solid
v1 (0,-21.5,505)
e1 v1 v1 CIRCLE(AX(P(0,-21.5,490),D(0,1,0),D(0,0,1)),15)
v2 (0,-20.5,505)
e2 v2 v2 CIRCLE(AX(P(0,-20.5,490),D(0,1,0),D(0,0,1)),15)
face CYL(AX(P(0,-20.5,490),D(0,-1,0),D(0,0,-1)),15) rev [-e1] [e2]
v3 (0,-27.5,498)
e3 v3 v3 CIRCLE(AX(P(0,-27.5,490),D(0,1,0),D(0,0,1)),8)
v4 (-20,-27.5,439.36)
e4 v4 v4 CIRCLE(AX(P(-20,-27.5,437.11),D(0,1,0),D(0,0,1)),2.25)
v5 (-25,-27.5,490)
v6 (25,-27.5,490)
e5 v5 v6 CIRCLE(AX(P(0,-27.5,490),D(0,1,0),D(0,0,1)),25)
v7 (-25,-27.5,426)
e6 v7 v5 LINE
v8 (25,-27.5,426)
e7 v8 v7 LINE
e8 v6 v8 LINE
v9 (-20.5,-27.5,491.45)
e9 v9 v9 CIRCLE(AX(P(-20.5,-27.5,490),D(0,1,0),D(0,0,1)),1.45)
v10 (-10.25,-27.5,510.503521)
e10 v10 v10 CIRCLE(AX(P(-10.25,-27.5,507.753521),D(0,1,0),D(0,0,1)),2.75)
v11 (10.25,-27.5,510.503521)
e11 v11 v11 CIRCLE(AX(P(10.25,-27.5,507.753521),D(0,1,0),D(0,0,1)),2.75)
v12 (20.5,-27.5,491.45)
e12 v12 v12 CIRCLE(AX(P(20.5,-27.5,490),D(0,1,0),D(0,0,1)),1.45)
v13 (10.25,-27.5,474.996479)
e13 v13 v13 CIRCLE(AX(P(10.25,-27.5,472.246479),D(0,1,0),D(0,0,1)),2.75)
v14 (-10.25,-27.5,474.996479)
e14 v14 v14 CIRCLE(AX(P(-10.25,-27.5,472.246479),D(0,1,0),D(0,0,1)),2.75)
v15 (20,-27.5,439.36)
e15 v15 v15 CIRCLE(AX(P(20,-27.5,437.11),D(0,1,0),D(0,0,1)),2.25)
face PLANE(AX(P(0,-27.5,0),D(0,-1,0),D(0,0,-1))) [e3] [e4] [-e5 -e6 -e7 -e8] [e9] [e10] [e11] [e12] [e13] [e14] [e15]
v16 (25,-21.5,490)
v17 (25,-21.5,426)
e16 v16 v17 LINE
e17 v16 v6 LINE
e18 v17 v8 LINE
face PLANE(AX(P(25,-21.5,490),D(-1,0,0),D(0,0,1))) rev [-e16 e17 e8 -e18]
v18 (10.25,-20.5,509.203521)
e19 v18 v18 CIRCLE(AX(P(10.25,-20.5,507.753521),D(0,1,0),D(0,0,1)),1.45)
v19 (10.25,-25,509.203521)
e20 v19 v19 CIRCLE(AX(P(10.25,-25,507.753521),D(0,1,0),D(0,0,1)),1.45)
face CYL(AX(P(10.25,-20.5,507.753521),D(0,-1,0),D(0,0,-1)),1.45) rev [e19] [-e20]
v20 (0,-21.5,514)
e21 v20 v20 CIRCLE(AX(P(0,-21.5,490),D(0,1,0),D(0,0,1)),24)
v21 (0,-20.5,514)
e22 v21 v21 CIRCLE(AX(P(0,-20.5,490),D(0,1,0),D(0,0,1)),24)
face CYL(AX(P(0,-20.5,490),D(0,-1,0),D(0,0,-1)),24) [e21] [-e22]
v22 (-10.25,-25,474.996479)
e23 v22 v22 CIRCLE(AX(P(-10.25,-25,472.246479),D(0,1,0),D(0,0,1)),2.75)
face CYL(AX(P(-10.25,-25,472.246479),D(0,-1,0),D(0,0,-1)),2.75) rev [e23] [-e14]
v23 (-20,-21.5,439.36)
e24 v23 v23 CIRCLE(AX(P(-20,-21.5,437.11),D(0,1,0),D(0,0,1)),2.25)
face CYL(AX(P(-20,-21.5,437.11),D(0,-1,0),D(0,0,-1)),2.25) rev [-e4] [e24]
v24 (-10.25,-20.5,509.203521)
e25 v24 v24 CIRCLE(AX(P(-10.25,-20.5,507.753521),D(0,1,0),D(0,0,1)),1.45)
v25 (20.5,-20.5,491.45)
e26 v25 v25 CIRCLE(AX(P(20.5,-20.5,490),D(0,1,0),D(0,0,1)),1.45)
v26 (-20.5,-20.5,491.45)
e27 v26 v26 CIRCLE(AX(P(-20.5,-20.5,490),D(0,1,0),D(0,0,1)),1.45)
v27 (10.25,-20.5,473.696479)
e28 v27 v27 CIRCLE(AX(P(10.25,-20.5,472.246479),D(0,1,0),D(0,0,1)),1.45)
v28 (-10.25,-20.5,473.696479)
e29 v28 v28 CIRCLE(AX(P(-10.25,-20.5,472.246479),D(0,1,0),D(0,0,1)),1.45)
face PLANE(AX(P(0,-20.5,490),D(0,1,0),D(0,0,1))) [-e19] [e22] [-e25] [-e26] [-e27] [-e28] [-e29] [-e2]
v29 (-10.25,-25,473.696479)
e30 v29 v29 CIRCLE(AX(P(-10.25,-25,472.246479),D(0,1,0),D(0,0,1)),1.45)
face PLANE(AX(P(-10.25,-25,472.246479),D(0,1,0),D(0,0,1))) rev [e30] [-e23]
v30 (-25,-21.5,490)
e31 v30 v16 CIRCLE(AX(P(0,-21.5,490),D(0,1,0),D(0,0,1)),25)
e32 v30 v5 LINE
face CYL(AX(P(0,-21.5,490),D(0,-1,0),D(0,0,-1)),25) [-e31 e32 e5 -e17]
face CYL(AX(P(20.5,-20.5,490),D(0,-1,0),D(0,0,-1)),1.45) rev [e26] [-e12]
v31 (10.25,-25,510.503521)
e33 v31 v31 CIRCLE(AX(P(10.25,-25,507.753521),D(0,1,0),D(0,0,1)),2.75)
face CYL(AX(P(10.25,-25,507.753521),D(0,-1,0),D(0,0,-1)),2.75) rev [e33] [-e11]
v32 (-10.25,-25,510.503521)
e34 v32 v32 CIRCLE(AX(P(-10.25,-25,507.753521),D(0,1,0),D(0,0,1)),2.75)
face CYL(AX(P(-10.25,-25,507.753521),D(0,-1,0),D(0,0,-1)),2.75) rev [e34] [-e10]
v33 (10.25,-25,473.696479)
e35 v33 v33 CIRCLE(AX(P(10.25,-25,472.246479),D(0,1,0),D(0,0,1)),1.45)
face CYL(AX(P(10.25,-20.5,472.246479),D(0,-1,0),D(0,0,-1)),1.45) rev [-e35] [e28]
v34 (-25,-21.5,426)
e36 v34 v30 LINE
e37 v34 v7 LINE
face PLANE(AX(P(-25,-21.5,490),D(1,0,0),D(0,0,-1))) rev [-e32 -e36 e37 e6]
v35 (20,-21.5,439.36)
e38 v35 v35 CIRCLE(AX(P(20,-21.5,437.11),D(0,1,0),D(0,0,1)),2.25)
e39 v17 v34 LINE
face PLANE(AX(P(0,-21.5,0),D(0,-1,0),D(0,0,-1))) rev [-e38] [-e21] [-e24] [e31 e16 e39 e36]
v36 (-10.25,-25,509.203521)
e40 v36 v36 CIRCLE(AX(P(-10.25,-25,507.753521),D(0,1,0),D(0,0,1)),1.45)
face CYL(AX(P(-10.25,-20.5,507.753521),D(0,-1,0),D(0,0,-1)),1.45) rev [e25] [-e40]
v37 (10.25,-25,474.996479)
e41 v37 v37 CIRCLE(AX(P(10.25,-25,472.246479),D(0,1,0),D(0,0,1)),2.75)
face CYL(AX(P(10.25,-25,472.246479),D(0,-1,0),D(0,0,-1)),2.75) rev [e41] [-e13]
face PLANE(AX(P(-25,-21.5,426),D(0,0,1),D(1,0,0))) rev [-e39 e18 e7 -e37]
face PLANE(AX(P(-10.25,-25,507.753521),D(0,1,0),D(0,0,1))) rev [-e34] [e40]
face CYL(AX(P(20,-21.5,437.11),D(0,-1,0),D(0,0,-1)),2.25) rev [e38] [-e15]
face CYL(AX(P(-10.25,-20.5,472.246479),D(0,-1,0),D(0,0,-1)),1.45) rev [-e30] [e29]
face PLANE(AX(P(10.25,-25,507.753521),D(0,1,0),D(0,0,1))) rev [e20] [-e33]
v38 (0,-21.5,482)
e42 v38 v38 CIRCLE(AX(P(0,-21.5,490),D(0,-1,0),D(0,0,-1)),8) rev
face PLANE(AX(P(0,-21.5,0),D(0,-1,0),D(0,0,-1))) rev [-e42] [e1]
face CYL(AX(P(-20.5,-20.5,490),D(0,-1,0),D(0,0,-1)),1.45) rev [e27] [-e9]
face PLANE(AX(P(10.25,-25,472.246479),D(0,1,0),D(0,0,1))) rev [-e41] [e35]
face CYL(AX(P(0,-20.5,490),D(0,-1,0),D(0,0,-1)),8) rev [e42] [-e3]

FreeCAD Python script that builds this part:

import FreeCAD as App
import Part
import Sketcher

V = App.Vector

doc = App.newDocument("Part")
body = doc.addObject("PartDesign::Body", "Body")

sketch1 = body.newObject("Sketcher::SketchObject", "Sketch")
sketch1.AttachmentSupport = (doc.getObject("XZ_Plane"), [""])
sketch1.MapMode = "FlatFace"
sketch1.AttachmentOffset = App.Placement(V(0, 0, 27.5), App.Rotation())
sketch1.addGeometry([
    Part.LineSegment(V(-25, 426, 0), V(-25, 490, 0)),
    Part.LineSegment(V(-25, 490, 0), V(25, 490, 0)),
    Part.LineSegment(V(25, 490, 0), V(25, 426, 0)),
    Part.LineSegment(V(25, 426, 0), V(-25, 426, 0)),
], False)
sketch1.addConstraint([
    Sketcher.Constraint("Coincident", 0, 2, 1, 1),
    Sketcher.Constraint("Coincident", 1, 2, 2, 1),
    Sketcher.Constraint("Coincident", 2, 2, 3, 1),
    Sketcher.Constraint("Coincident", 3, 2, 0, 1),
    Sketcher.Constraint("Vertical", 0),
    Sketcher.Constraint("Horizontal", 1),
    Sketcher.Constraint("Vertical", 2),
    Sketcher.Constraint("Horizontal", 3),
    Sketcher.Constraint("DistanceX", 1, 1, 1, 2, 50.0),
    Sketcher.Constraint("DistanceY", 0, 1, 0, 2, 64.0),
    Sketcher.Constraint("DistanceX", 0, 2, -1, 1, 25.0),
    Sketcher.Constraint("DistanceY", -1, 1, 0, 2, 490.0),
])
pad1 = body.newObject("PartDesign::Pad", "Pad")
pad1.Profile = sketch1
pad1.Length = 6
pad1.Reversed = True

sketch2 = body.newObject("Sketcher::SketchObject", "Sketch001")
sketch2.AttachmentSupport = (doc.getObject("XZ_Plane"), [""])
sketch2.MapMode = "FlatFace"
sketch2.AttachmentOffset = App.Placement(V(0, 0, 27.5), App.Rotation())
sketch2.addGeometry(Part.Circle(V(0, 490, 0), V(0, 0, 1), 25), False)
sketch2.addConstraint([
    Sketcher.Constraint("PointOnObject", 0, 3, -2),
    Sketcher.Constraint("Diameter", 0, 50.0),
    Sketcher.Constraint("DistanceY", -1, 1, 0, 3, 490.0),
])
pad2 = body.newObject("PartDesign::Pad", "Pad001")
pad2.Profile = sketch2
pad2.Length = 6
pad2.Reversed = True

sketch3 = body.newObject("Sketcher::SketchObject", "Sketch002")
sketch3.AttachmentSupport = (doc.getObject("XZ_Plane"), [""])
sketch3.MapMode = "FlatFace"
sketch3.AttachmentOffset = App.Placement(V(0, 0, 21.5), App.Rotation())
sketch3.addGeometry([
    Part.Circle(V(0, 490, 0), V(0, 0, 1), 24),
    Part.Circle(V(0, 490, 0), V(0, 0, 1), 15),
], False)
sketch3.addConstraint([
    Sketcher.Constraint("Coincident", 1, 3, 0, 3),
    Sketcher.Constraint("PointOnObject", 0, 3, -2),
    Sketcher.Constraint("Diameter", 0, 48.0),
    Sketcher.Constraint("Diameter", 1, 30.0),
    Sketcher.Constraint("DistanceY", -1, 1, 0, 3, 490.0),
])
pad3 = body.newObject("PartDesign::Pad", "Pad002")
pad3.Profile = sketch3
pad3.Length = 1
pad3.Reversed = True

sketch4 = body.newObject("Sketcher::SketchObject", "Sketch003")
sketch4.AttachmentSupport = (doc.getObject("XZ_Plane"), [""])
sketch4.MapMode = "FlatFace"
sketch4.AttachmentOffset = App.Placement(V(0, 0, 27.5), App.Rotation())
sketch4.addGeometry(Part.Circle(V(0, 490, 0), V(0, 0, 1), 8), False)
sketch4.addConstraint([
    Sketcher.Constraint("PointOnObject", 0, 3, -2),
    Sketcher.Constraint("Diameter", 0, 16.0),
    Sketcher.Constraint("DistanceY", -1, 1, 0, 3, 490.0),
])
pocket1 = body.newObject("PartDesign::Pocket", "Pocket")
pocket1.Profile = sketch4
pocket1.Length = 7

sketch5 = body.newObject("Sketcher::SketchObject", "Sketch004")
sketch5.AttachmentSupport = (doc.getObject("XZ_Plane"), [""])
sketch5.MapMode = "FlatFace"
sketch5.AttachmentOffset = App.Placement(V(0, 0, 27.5), App.Rotation())
sketch5.addGeometry([
    Part.Circle(V(20.5, 490, 0), V(0, 0, 1), 1.4),
    Part.Circle(V(10.2, 507.8, 0), V(0, 0, 1), 1.4),
    Part.Circle(V(-10.2, 507.8, 0), V(0, 0, 1), 1.4),
    Part.Circle(V(-20.5, 490, 0), V(0, 0, 1), 1.4),
    Part.Circle(V(-10.2, 472.2, 0), V(0, 0, 1), 1.4),
    Part.Circle(V(10.2, 472.2, 0), V(0, 0, 1), 1.4),
], False)
sketch5.addConstraint([
    Sketcher.Constraint("Equal", 0, 1),
    Sketcher.Constraint("Equal", 1, 2),
    Sketcher.Constraint("Equal", 2, 3),
    Sketcher.Constraint("Equal", 3, 4),
    Sketcher.Constraint("Equal", 4, 5),
    Sketcher.Constraint("Symmetric", 1, 3, 2, 3, -2),
    Sketcher.Constraint("Symmetric", 0, 3, 3, 3, -2),
    Sketcher.Constraint("Symmetric", 4, 3, 5, 3, -2),
    Sketcher.Constraint("Vertical", 2, 3, 4, 3),
    Sketcher.Constraint("Diameter", 0, 2.9),
    Sketcher.Constraint("DistanceY", -1, 1, 0, 3, 490.0),
    Sketcher.Constraint("DistanceX", 3, 3, 0, 3, 41.0),
    Sketcher.Constraint("DistanceX", 2, 3, 1, 3, 20.5),
    Sketcher.Constraint("DistanceY", -1, 1, 1, 3, 507.753521),
    Sketcher.Constraint("DistanceY", -1, 1, 4, 3, 472.246479),
])
pocket2 = body.newObject("PartDesign::Pocket", "Pocket001")
pocket2.Profile = sketch5
pocket2.Length = 7

sketch6 = body.newObject("Sketcher::SketchObject", "Sketch005")
sketch6.AttachmentSupport = (doc.getObject("XZ_Plane"), [""])
sketch6.MapMode = "FlatFace"
sketch6.AttachmentOffset = App.Placement(V(0, 0, 27.5), App.Rotation())
sketch6.addGeometry([
    Part.Circle(V(10.2, 507.8, 0), V(0, 0, 1), 2.8),
    Part.Circle(V(-10.2, 507.8, 0), V(0, 0, 1), 2.8),
    Part.Circle(V(-10.2, 472.2, 0), V(0, 0, 1), 2.8),
    Part.Circle(V(10.2, 472.2, 0), V(0, 0, 1), 2.8),
], False)
sketch6.addConstraint([
    Sketcher.Constraint("Equal", 0, 1),
    Sketcher.Constraint("Equal", 1, 2),
    Sketcher.Constraint("Equal", 2, 3),
    Sketcher.Constraint("Symmetric", 0, 3, 1, 3, -2),
    Sketcher.Constraint("Symmetric", 2, 3, 3, 3, -2),
    Sketcher.Constraint("Vertical", 1, 3, 2, 3),
    Sketcher.Constraint("Diameter", 0, 5.5),
    Sketcher.Constraint("DistanceX", 1, 3, 0, 3, 20.5),
    Sketcher.Constraint("DistanceY", -1, 1, 0, 3, 507.753521),
    Sketcher.Constraint("DistanceY", -1, 1, 2, 3, 472.246479),
])
pocket3 = body.newObject("PartDesign::Pocket", "Pocket002")
pocket3.Profile = sketch6
pocket3.Length = 2.5

sketch7 = body.newObject("Sketcher::SketchObject", "Sketch006")
sketch7.AttachmentSupport = (doc.getObject("XZ_Plane"), [""])
sketch7.MapMode = "FlatFace"
sketch7.AttachmentOffset = App.Placement(V(0, 0, 27.5), App.Rotation())
sketch7.addGeometry([
    Part.Circle(V(-20, 437.1, 0), V(0, 0, 1), 2.2),
    Part.Circle(V(20, 437.1, 0), V(0, 0, 1), 2.2),
], False)
sketch7.addConstraint([
    Sketcher.Constraint("Equal", 0, 1),
    Sketcher.Constraint("Symmetric", 0, 3, 1, 3, -2),
    Sketcher.Constraint("Diameter", 0, 4.5),
    Sketcher.Constraint("DistanceX", 0, 3, -1, 1, 20.0),
    Sketcher.Constraint("DistanceY", -1, 1, 0, 3, 437.11),
])
pocket4 = body.newObject("PartDesign::Pocket", "Pocket003")
pocket4.Profile = sketch7
pocket4.Length = 6

doc.recompute()
